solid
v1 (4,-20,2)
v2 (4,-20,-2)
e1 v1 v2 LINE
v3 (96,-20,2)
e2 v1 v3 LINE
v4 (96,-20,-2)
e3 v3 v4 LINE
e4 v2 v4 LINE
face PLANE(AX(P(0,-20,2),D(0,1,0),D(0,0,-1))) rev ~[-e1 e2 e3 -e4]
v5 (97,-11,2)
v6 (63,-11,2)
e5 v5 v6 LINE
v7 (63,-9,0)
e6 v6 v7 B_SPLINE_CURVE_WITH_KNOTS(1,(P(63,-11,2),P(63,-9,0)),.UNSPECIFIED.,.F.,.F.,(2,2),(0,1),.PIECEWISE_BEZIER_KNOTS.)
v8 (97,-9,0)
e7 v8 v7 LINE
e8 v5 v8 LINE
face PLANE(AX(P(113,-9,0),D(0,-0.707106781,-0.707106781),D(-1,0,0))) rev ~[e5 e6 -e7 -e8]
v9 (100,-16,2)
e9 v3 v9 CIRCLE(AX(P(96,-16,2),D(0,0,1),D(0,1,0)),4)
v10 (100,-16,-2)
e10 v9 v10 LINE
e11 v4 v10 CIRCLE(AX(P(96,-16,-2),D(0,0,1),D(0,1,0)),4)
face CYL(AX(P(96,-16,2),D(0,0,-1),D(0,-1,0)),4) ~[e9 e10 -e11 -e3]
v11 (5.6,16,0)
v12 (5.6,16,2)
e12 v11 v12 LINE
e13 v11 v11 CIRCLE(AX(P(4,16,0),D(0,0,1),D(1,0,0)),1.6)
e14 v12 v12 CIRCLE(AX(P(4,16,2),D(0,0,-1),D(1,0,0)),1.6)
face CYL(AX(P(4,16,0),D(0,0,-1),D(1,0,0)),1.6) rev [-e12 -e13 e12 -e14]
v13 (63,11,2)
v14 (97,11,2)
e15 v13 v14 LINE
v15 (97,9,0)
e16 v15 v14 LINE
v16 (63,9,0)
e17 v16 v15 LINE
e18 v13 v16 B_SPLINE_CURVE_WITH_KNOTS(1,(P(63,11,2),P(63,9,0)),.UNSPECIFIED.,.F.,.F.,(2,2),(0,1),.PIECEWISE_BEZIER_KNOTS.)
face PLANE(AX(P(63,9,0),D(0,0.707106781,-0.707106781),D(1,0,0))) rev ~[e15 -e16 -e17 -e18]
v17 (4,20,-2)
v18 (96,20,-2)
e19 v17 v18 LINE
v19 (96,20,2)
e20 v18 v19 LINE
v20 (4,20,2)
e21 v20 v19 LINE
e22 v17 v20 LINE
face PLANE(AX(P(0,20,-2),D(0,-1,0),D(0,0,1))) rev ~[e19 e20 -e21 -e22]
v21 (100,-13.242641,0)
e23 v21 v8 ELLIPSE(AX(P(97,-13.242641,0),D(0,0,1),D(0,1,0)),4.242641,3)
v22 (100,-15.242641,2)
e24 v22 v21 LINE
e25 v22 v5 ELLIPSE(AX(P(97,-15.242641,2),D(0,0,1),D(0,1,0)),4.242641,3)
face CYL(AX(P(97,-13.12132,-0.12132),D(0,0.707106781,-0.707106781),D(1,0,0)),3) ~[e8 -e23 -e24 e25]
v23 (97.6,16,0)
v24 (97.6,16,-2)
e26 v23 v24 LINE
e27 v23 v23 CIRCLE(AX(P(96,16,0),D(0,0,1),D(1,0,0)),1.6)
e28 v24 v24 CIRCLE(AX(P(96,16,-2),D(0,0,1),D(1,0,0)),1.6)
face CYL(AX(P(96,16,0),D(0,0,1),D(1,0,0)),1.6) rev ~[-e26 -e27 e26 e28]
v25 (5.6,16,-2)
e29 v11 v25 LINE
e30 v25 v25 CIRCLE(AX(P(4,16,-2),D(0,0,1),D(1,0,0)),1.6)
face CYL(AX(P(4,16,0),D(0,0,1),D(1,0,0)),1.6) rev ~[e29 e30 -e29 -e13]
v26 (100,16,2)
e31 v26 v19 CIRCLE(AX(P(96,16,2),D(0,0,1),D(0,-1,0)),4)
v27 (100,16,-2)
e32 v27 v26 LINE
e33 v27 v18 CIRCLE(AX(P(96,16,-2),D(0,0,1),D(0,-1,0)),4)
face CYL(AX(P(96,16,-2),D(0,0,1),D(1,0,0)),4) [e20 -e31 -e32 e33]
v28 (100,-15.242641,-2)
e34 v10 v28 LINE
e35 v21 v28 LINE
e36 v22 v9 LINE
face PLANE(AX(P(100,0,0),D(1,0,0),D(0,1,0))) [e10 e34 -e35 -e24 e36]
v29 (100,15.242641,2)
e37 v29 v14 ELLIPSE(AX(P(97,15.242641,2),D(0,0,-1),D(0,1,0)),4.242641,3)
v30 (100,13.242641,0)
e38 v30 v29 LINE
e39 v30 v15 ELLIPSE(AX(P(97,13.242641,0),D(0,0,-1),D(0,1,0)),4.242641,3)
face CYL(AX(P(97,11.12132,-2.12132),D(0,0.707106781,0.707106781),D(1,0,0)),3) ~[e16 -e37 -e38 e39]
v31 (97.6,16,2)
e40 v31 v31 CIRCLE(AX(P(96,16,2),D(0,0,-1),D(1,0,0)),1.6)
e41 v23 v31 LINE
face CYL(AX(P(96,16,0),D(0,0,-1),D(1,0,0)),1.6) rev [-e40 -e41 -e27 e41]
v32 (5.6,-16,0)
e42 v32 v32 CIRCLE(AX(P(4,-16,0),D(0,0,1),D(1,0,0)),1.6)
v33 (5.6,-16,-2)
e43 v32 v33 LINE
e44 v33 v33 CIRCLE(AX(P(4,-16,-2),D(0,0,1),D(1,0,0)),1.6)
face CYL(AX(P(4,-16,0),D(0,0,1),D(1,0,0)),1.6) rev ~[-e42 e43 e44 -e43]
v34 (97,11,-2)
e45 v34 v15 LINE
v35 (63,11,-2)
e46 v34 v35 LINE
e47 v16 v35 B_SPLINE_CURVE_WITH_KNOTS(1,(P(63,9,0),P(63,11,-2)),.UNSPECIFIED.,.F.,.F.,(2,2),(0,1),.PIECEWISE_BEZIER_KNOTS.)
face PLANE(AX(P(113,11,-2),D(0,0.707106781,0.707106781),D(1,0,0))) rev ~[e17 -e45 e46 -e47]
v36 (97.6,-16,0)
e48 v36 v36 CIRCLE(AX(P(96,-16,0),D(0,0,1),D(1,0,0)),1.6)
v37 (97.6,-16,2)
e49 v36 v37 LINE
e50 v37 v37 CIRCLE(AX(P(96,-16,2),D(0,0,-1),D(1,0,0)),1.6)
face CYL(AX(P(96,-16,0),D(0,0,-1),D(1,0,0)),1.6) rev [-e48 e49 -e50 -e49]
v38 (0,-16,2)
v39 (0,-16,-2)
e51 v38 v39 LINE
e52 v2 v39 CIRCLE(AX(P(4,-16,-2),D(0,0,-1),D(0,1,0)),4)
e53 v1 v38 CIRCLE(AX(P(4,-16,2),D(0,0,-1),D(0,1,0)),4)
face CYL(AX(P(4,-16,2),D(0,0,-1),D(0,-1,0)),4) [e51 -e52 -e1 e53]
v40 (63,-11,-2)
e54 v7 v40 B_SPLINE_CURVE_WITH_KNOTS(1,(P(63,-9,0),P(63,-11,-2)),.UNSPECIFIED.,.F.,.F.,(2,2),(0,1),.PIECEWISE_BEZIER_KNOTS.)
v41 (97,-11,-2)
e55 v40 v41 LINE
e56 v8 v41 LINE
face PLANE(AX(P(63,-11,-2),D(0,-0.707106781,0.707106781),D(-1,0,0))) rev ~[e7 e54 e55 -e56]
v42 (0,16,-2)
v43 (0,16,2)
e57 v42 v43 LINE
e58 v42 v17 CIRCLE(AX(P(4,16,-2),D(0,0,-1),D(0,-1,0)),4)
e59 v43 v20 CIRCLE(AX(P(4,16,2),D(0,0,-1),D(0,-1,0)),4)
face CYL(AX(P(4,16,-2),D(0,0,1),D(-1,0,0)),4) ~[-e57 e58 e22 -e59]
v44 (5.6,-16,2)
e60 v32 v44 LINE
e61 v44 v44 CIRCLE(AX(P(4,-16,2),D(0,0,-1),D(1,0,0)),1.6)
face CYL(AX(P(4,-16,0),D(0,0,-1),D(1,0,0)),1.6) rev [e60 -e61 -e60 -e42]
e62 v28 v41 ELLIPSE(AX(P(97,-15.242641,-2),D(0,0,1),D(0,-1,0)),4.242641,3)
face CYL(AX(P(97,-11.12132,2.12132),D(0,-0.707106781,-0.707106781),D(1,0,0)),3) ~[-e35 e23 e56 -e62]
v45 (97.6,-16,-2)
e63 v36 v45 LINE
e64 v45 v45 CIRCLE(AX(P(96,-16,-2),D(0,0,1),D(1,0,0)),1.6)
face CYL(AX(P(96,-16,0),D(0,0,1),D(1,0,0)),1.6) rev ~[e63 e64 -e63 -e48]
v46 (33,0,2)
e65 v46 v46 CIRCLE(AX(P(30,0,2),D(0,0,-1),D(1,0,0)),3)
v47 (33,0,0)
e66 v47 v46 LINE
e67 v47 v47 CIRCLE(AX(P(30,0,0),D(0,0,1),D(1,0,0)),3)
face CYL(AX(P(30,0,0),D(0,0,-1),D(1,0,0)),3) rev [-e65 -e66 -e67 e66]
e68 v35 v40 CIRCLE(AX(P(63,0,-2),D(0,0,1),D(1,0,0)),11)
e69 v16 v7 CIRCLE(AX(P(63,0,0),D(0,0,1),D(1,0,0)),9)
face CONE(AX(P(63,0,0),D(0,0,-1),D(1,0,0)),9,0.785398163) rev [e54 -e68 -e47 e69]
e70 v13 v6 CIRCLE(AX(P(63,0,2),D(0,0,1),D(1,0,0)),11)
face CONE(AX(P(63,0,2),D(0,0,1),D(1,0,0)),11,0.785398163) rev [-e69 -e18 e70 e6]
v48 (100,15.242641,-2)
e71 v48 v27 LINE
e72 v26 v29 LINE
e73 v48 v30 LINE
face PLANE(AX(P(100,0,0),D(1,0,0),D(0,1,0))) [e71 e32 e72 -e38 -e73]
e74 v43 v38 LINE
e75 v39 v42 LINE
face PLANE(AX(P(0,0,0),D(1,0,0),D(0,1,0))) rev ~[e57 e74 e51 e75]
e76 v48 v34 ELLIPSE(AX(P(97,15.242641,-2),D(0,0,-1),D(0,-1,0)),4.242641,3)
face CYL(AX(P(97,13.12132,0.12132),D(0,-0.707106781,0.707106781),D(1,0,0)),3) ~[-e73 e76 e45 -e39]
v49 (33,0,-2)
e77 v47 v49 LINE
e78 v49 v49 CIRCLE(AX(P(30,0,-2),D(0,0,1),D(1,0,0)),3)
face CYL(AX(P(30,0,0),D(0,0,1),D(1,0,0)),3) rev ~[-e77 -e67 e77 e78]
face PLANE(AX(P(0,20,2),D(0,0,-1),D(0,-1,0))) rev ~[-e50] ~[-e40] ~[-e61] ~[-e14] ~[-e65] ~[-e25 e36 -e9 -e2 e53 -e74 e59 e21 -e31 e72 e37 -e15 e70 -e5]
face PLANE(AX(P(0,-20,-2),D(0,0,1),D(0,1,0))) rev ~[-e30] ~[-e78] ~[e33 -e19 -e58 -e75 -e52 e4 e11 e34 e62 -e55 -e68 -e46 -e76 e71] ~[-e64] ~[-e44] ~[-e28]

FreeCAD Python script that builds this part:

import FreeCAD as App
import Part
import Sketcher
Q = App.Units.Quantity


def edges_at(feature, points):
    """Names of the edges that pass closest to the given points."""
    edges = feature.Shape.Edges
    near = lambda p: min(range(len(edges)), key=lambda i: edges[i].distToShape(Part.Vertex(*p))[0])
    return sorted({f"Edge{near(p) + 1}" for p in points})


def add_polygon(sketch, points):
    """Adds a closed chain of lines whose ends are joined by coincident constraints."""
    first, n = sketch.GeometryCount, len(points)
    for a, b in zip(points, points[1:] + points[:1]):
        sketch.addGeometry(Part.LineSegment(App.Vector(*a, 0), App.Vector(*b, 0)), False)
    for i in range(n):
        sketch.addConstraint(Sketcher.Constraint("Coincident", first + i, 2, first + (i + 1) % n, 1))

doc = App.newDocument("Part")
body = doc.addObject("PartDesign::Body", "Body")

# Sketch on YZ plane
sketch1 = body.newObject("Sketcher::SketchObject", "Sketch")
sketch1.AttachmentSupport = (doc.getObject("YZ_Plane"), [""])
sketch1.MapMode = "FlatFace"
add_polygon(sketch1, [(-20, 2), (-20, -2), (20, -2), (20, 2)])  # lines 0-3
sketch1.addConstraint([
    Sketcher.Constraint("Vertical", 0),
    Sketcher.Constraint("Horizontal", 1),
    Sketcher.Constraint("Vertical", 2),
    Sketcher.Constraint("Horizontal", 3),
    Sketcher.Constraint("Symmetric", 0, 2, 2, 2, -1, 1),
    Sketcher.Constraint("DistanceX", 1, 1, 1, 2, Q("40 mm")),
    Sketcher.Constraint("DistanceY", 0, 2, 0, 1, Q("4 mm")),
])
pad1 = body.newObject("PartDesign::Pad", "Pad")
pad1.Profile = sketch1
pad1.Length = 100

# Sketch on XY plane
sketch2 = body.newObject("Sketcher::SketchObject", "Sketch001")
sketch2.AttachmentSupport = (doc.getObject("XY_Plane"), [""])
sketch2.MapMode = "FlatFace"
sketch2.addGeometry([
    Part.Circle(App.Vector(30, 0, 0), App.Vector(0, 0, 1), 3),  # 0
    Part.Circle(App.Vector(4, 16, 0), App.Vector(0, 0, 1), 1.6),  # 1
    Part.Circle(App.Vector(4, -16, 0), App.Vector(0, 0, 1), 1.6),  # 2
    Part.Circle(App.Vector(96, 16, 0), App.Vector(0, 0, 1), 1.6),  # 3
    Part.Circle(App.Vector(96, -16, 0), App.Vector(0, 0, 1), 1.6),  # 4
], False)
sketch2.addConstraint([
    Sketcher.Constraint("Equal", 1, 2),
    Sketcher.Constraint("Equal", 2, 3),
    Sketcher.Constraint("Equal", 3, 4),
    Sketcher.Constraint("Symmetric", 1, 3, 2, 3, -1),
    Sketcher.Constraint("Symmetric", 3, 3, 4, 3, -1),
    Sketcher.Constraint("PointOnObject", 0, 3, -1),
    Sketcher.Constraint("Horizontal", 1, 3, 3, 3),
    Sketcher.Constraint("Diameter", 0, Q("6 mm")),
    Sketcher.Constraint("Diameter", 1, Q("3.2 mm")),
    Sketcher.Constraint("DistanceX", -1, 1, 0, 3, Q("30 mm")),
    Sketcher.Constraint("DistanceX", -1, 1, 1, 3, Q("4 mm")),
    Sketcher.Constraint("DistanceY", -1, 1, 1, 3, Q("16 mm")),
    Sketcher.Constraint("DistanceX", -1, 1, 3, 3, Q("96 mm")),
])
pocket1 = body.newObject("PartDesign::Pocket", "Pocket")
pocket1.Profile = sketch2
pocket1.Type = "ThroughAll"
pocket1.Midplane = True

# Sketch on XY plane
sketch3 = body.newObject("Sketcher::SketchObject", "Sketch002")
sketch3.AttachmentSupport = (doc.getObject("XY_Plane"), [""])
sketch3.MapMode = "FlatFace"
sketch3.AttachmentOffset = App.Placement(App.Vector(0, 0, 2), App.Rotation())
sketch3.addGeometry(Part.Circle(App.Vector(63, 0, 0), App.Vector(0, 0, 1), 11), False)
sketch3.addConstraint([
    Sketcher.Constraint("PointOnObject", 0, 3, -1),
    Sketcher.Constraint("Diameter", 0, Q("22 mm")),
    Sketcher.Constraint("DistanceX", -1, 1, 0, 3, Q("63 mm")),
])

# Sketch on XY plane
sketch4 = body.newObject("Sketcher::SketchObject", "Sketch003")
sketch4.AttachmentSupport = (doc.getObject("XY_Plane"), [""])
sketch4.MapMode = "FlatFace"
sketch4.addGeometry(Part.Circle(App.Vector(63, 0, 0), App.Vector(0, 0, 1), 9), False)
sketch4.addConstraint([
    Sketcher.Constraint("PointOnObject", 0, 3, -1),
    Sketcher.Constraint("Diameter", 0, Q("18 mm")),
    Sketcher.Constraint("DistanceX", -1, 1, 0, 3, Q("63 mm")),
])

# Sketch on XY plane
sketch5 = body.newObject("Sketcher::SketchObject", "Sketch004")
sketch5.AttachmentSupport = (doc.getObject("XY_Plane"), [""])
sketch5.MapMode = "FlatFace"
sketch5.AttachmentOffset = App.Placement(App.Vector(0, 0, -2), App.Rotation())
sketch5.addGeometry(Part.Circle(App.Vector(63, 0, 0), App.Vector(0, 0, 1), 11), False)
sketch5.addConstraint([
    Sketcher.Constraint("PointOnObject", 0, 3, -1),
    Sketcher.Constraint("Diameter", 0, Q("22 mm")),
    Sketcher.Constraint("DistanceX", -1, 1, 0, 3, Q("63 mm")),
])

subtractiveloft = body.newObject("PartDesign::SubtractiveLoft", "SubtractiveLoft")
subtractiveloft.Profile = sketch3
subtractiveloft.Sections = [sketch4, sketch5]
subtractiveloft.Ruled = True

# Sketch on XY plane
sketch6 = body.newObject("Sketcher::SketchObject", "Sketch005")
sketch6.AttachmentSupport = (doc.getObject("XY_Plane"), [""])
sketch6.MapMode = "FlatFace"
sketch6.AttachmentOffset = App.Placement(App.Vector(0, 0, 2), App.Rotation())
add_polygon(sketch6, [(63, 11), (63, -11), (113, -11), (113, 11)])  # lines 0-3
sketch6.addConstraint([
    Sketcher.Constraint("Vertical", 0),
    Sketcher.Constraint("Horizontal", 1),
    Sketcher.Constraint("Vertical", 2),
    Sketcher.Constraint("Horizontal", 3),
    Sketcher.Constraint("DistanceX", 1, 1, 1, 2, Q("50 mm")),
    Sketcher.Constraint("DistanceY", 0, 2, 0, 1, Q("22 mm")),
    Sketcher.Constraint("DistanceX", -1, 1, 0, 2, Q("63 mm")),
    Sketcher.Constraint("DistanceY", 0, 2, -1, 1, Q("11 mm")),
])

# Sketch on XY plane
sketch7 = body.newObject("Sketcher::SketchObject", "Sketch006")
sketch7.AttachmentSupport = (doc.getObject("XY_Plane"), [""])
sketch7.MapMode = "FlatFace"
add_polygon(sketch7, [(63, 9), (63, -9), (113, -9), (113, 9)])  # lines 0-3
sketch7.addConstraint([
    Sketcher.Constraint("Vertical", 0),
    Sketcher.Constraint("Horizontal", 1),
    Sketcher.Constraint("Vertical", 2),
    Sketcher.Constraint("Horizontal", 3),
    Sketcher.Constraint("DistanceX", 1, 1, 1, 2, Q("50 mm")),
    Sketcher.Constraint("DistanceY", 0, 2, 0, 1, Q("18 mm")),
    Sketcher.Constraint("DistanceX", -1, 1, 0, 2, Q("63 mm")),
    Sketcher.Constraint("DistanceY", 0, 2, -1, 1, Q("9 mm")),
])

# Sketch on XY plane
sketch8 = body.newObject("Sketcher::SketchObject", "Sketch007")
sketch8.AttachmentSupport = (doc.getObject("XY_Plane"), [""])
sketch8.MapMode = "FlatFace"
sketch8.AttachmentOffset = App.Placement(App.Vector(0, 0, -2), App.Rotation())
add_polygon(sketch8, [(63, 11), (63, -11), (113, -11), (113, 11)])  # lines 0-3
sketch8.addConstraint([
    Sketcher.Constraint("Vertical", 0),
    Sketcher.Constraint("Horizontal", 1),
    Sketcher.Constraint("Vertical", 2),
    Sketcher.Constraint("Horizontal", 3),
    Sketcher.Constraint("DistanceX", 1, 1, 1, 2, Q("50 mm")),
    Sketcher.Constraint("DistanceY", 0, 2, 0, 1, Q("22 mm")),
    Sketcher.Constraint("DistanceX", -1, 1, 0, 2, Q("63 mm")),
    Sketcher.Constraint("DistanceY", 0, 2, -1, 1, Q("11 mm")),
])

subtractiveloft2 = body.newObject("PartDesign::SubtractiveLoft", "SubtractiveLoft001")
subtractiveloft2.Profile = sketch6
subtractiveloft2.Sections = [sketch7, sketch8]
subtractiveloft2.Ruled = True
doc.recompute()

fillet = body.newObject("PartDesign::Fillet", "Fillet")
fillet.Base = (subtractiveloft2, edges_at(subtractiveloft2, [
    (100, -20, 0),
    (100, 20, 0),
    (0, 20, 0),
    (0, -20, 0),
]))
fillet.Radius = 4
doc.recompute()

fillet2 = body.newObject("PartDesign::Fillet", "Fillet001")
fillet2.Base = (fillet, edges_at(fillet, [
    (100, -10, 1),
    (100, -10, -1),
    (100, 10, 1),
    (100, 10, -1),
]))
fillet2.Radius = 3

doc.recompute()
